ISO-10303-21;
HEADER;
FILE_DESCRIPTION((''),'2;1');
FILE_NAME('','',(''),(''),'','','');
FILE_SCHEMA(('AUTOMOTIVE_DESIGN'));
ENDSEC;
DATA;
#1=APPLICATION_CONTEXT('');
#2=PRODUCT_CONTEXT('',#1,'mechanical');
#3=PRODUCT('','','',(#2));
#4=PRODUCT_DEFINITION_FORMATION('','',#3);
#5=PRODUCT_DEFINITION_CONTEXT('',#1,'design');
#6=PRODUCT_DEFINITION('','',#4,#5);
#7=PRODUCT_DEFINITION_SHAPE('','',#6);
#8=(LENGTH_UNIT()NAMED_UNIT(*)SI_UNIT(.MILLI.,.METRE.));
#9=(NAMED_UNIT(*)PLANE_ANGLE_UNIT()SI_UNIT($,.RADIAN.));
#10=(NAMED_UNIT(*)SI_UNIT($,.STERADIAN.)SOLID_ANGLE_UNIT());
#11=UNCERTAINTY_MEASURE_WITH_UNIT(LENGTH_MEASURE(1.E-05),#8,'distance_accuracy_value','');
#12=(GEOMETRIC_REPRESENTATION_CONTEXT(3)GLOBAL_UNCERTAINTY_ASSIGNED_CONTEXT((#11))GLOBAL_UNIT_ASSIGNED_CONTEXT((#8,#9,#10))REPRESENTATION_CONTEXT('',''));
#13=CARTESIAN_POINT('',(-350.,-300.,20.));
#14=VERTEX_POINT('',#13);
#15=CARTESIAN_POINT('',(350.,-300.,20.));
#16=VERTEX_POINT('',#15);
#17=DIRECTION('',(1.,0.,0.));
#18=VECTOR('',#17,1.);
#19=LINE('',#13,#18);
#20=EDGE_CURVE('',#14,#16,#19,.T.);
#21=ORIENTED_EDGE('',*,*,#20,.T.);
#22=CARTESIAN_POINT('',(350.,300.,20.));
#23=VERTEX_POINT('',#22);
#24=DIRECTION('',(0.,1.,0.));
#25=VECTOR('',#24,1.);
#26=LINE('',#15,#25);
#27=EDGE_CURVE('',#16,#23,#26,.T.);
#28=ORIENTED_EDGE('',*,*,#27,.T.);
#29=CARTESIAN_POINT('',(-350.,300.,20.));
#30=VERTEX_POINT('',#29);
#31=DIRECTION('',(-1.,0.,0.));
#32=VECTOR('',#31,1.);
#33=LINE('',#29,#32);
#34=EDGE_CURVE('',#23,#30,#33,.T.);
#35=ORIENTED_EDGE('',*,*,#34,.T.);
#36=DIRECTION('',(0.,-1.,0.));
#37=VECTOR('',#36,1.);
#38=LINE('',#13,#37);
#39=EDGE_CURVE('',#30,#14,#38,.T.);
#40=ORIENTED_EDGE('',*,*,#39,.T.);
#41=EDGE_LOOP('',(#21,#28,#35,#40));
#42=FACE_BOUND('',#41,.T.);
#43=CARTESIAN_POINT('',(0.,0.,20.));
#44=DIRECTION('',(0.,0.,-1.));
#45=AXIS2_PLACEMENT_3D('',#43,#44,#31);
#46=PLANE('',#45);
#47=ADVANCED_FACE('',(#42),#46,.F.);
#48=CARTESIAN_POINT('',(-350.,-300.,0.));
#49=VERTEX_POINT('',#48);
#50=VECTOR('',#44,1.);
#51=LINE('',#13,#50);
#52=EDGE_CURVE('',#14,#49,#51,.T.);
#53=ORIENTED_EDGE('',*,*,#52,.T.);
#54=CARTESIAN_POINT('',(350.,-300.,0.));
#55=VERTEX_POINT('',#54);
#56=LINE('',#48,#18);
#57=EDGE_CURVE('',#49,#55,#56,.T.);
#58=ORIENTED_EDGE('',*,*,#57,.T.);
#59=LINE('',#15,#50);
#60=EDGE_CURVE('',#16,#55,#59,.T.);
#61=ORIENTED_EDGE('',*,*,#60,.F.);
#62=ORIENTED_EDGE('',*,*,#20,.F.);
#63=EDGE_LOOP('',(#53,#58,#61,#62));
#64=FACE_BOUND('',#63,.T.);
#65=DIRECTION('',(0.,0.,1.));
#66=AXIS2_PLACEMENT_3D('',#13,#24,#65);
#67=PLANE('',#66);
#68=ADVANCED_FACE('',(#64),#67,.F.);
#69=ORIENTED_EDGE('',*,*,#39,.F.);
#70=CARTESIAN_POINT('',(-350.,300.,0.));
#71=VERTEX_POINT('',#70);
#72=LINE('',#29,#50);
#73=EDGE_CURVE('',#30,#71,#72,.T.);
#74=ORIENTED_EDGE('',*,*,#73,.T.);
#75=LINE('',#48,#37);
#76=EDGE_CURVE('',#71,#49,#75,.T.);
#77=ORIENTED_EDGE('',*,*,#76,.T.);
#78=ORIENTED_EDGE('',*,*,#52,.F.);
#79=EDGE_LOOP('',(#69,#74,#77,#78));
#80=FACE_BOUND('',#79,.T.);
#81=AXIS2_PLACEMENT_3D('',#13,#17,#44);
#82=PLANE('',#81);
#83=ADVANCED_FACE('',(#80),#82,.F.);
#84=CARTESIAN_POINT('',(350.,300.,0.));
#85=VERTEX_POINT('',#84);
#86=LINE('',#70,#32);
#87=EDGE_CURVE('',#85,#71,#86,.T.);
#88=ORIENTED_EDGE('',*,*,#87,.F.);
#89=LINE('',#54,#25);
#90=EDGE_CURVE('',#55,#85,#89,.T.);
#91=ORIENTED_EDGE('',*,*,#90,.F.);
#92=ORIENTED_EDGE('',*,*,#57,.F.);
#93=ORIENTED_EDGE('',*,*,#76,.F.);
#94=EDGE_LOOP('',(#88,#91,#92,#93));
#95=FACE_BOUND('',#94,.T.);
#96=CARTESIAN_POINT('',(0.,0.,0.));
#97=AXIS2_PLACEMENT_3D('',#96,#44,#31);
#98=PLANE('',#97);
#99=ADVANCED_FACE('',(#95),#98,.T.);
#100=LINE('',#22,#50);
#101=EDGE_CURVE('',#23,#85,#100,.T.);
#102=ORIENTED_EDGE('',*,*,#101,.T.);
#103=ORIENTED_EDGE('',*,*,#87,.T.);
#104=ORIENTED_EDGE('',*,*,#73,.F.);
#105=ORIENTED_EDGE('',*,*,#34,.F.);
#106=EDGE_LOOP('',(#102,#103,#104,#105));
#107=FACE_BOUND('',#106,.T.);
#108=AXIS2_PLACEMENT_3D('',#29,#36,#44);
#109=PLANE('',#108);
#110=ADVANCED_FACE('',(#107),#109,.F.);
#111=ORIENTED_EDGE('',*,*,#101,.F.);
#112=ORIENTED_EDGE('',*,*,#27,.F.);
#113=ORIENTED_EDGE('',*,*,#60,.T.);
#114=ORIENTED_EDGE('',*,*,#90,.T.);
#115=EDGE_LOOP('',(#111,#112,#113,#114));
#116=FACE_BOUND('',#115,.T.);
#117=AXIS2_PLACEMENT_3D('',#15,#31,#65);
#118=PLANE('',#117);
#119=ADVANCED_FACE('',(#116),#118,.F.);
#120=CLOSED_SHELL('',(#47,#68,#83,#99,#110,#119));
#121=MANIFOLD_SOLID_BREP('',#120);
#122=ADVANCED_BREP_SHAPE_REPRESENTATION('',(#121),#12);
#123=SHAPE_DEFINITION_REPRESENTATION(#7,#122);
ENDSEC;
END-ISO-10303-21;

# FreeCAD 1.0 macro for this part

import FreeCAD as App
import Part
import Sketcher

V = App.Vector

doc = App.newDocument("Part")
body = doc.addObject("PartDesign::Body", "Body")

sketch1 = body.newObject("Sketcher::SketchObject", "Sketch")
sketch1.AttachmentSupport = (doc.getObject("XY_Plane"), [""])
sketch1.MapMode = "FlatFace"
sketch1.addGeometry(Part.LineSegment(V(-350, 300, 0), V(-350, -300, 0)), False)
sketch1.addGeometry(Part.LineSegment(V(-350, -300, 0), V(350, -300, 0)), False)
sketch1.addGeometry(Part.LineSegment(V(350, -300, 0), V(350, 300, 0)), False)
sketch1.addGeometry(Part.LineSegment(V(350, 300, 0), V(-350, 300, 0)), False)
sketch1.addConstraint(Sketcher.Constraint("Coincident", 0, 2, 1, 1))
sketch1.addConstraint(Sketcher.Constraint("Coincident", 1, 2, 2, 1))
sketch1.addConstraint(Sketcher.Constraint("Coincident", 2, 2, 3, 1))
sketch1.addConstraint(Sketcher.Constraint("Coincident", 3, 2, 0, 1))
sketch1.addConstraint(Sketcher.Constraint("Vertical", 0))
sketch1.addConstraint(Sketcher.Constraint("Horizontal", 1))
sketch1.addConstraint(Sketcher.Constraint("Vertical", 2))
sketch1.addConstraint(Sketcher.Constraint("Horizontal", 3))
sketch1.addConstraint(Sketcher.Constraint("Symmetric", 0, 2, 2, 2, -1, 1))
sketch1.addConstraint(Sketcher.Constraint("DistanceX", 1, 1, 1, 2, 700.0))
sketch1.addConstraint(Sketcher.Constraint("DistanceY", 0, 2, 0, 1, 600.0))
pad1 = body.newObject("PartDesign::Pad", "Pad")
pad1.Profile = sketch1
pad1.Length = 20

doc.recompute()
